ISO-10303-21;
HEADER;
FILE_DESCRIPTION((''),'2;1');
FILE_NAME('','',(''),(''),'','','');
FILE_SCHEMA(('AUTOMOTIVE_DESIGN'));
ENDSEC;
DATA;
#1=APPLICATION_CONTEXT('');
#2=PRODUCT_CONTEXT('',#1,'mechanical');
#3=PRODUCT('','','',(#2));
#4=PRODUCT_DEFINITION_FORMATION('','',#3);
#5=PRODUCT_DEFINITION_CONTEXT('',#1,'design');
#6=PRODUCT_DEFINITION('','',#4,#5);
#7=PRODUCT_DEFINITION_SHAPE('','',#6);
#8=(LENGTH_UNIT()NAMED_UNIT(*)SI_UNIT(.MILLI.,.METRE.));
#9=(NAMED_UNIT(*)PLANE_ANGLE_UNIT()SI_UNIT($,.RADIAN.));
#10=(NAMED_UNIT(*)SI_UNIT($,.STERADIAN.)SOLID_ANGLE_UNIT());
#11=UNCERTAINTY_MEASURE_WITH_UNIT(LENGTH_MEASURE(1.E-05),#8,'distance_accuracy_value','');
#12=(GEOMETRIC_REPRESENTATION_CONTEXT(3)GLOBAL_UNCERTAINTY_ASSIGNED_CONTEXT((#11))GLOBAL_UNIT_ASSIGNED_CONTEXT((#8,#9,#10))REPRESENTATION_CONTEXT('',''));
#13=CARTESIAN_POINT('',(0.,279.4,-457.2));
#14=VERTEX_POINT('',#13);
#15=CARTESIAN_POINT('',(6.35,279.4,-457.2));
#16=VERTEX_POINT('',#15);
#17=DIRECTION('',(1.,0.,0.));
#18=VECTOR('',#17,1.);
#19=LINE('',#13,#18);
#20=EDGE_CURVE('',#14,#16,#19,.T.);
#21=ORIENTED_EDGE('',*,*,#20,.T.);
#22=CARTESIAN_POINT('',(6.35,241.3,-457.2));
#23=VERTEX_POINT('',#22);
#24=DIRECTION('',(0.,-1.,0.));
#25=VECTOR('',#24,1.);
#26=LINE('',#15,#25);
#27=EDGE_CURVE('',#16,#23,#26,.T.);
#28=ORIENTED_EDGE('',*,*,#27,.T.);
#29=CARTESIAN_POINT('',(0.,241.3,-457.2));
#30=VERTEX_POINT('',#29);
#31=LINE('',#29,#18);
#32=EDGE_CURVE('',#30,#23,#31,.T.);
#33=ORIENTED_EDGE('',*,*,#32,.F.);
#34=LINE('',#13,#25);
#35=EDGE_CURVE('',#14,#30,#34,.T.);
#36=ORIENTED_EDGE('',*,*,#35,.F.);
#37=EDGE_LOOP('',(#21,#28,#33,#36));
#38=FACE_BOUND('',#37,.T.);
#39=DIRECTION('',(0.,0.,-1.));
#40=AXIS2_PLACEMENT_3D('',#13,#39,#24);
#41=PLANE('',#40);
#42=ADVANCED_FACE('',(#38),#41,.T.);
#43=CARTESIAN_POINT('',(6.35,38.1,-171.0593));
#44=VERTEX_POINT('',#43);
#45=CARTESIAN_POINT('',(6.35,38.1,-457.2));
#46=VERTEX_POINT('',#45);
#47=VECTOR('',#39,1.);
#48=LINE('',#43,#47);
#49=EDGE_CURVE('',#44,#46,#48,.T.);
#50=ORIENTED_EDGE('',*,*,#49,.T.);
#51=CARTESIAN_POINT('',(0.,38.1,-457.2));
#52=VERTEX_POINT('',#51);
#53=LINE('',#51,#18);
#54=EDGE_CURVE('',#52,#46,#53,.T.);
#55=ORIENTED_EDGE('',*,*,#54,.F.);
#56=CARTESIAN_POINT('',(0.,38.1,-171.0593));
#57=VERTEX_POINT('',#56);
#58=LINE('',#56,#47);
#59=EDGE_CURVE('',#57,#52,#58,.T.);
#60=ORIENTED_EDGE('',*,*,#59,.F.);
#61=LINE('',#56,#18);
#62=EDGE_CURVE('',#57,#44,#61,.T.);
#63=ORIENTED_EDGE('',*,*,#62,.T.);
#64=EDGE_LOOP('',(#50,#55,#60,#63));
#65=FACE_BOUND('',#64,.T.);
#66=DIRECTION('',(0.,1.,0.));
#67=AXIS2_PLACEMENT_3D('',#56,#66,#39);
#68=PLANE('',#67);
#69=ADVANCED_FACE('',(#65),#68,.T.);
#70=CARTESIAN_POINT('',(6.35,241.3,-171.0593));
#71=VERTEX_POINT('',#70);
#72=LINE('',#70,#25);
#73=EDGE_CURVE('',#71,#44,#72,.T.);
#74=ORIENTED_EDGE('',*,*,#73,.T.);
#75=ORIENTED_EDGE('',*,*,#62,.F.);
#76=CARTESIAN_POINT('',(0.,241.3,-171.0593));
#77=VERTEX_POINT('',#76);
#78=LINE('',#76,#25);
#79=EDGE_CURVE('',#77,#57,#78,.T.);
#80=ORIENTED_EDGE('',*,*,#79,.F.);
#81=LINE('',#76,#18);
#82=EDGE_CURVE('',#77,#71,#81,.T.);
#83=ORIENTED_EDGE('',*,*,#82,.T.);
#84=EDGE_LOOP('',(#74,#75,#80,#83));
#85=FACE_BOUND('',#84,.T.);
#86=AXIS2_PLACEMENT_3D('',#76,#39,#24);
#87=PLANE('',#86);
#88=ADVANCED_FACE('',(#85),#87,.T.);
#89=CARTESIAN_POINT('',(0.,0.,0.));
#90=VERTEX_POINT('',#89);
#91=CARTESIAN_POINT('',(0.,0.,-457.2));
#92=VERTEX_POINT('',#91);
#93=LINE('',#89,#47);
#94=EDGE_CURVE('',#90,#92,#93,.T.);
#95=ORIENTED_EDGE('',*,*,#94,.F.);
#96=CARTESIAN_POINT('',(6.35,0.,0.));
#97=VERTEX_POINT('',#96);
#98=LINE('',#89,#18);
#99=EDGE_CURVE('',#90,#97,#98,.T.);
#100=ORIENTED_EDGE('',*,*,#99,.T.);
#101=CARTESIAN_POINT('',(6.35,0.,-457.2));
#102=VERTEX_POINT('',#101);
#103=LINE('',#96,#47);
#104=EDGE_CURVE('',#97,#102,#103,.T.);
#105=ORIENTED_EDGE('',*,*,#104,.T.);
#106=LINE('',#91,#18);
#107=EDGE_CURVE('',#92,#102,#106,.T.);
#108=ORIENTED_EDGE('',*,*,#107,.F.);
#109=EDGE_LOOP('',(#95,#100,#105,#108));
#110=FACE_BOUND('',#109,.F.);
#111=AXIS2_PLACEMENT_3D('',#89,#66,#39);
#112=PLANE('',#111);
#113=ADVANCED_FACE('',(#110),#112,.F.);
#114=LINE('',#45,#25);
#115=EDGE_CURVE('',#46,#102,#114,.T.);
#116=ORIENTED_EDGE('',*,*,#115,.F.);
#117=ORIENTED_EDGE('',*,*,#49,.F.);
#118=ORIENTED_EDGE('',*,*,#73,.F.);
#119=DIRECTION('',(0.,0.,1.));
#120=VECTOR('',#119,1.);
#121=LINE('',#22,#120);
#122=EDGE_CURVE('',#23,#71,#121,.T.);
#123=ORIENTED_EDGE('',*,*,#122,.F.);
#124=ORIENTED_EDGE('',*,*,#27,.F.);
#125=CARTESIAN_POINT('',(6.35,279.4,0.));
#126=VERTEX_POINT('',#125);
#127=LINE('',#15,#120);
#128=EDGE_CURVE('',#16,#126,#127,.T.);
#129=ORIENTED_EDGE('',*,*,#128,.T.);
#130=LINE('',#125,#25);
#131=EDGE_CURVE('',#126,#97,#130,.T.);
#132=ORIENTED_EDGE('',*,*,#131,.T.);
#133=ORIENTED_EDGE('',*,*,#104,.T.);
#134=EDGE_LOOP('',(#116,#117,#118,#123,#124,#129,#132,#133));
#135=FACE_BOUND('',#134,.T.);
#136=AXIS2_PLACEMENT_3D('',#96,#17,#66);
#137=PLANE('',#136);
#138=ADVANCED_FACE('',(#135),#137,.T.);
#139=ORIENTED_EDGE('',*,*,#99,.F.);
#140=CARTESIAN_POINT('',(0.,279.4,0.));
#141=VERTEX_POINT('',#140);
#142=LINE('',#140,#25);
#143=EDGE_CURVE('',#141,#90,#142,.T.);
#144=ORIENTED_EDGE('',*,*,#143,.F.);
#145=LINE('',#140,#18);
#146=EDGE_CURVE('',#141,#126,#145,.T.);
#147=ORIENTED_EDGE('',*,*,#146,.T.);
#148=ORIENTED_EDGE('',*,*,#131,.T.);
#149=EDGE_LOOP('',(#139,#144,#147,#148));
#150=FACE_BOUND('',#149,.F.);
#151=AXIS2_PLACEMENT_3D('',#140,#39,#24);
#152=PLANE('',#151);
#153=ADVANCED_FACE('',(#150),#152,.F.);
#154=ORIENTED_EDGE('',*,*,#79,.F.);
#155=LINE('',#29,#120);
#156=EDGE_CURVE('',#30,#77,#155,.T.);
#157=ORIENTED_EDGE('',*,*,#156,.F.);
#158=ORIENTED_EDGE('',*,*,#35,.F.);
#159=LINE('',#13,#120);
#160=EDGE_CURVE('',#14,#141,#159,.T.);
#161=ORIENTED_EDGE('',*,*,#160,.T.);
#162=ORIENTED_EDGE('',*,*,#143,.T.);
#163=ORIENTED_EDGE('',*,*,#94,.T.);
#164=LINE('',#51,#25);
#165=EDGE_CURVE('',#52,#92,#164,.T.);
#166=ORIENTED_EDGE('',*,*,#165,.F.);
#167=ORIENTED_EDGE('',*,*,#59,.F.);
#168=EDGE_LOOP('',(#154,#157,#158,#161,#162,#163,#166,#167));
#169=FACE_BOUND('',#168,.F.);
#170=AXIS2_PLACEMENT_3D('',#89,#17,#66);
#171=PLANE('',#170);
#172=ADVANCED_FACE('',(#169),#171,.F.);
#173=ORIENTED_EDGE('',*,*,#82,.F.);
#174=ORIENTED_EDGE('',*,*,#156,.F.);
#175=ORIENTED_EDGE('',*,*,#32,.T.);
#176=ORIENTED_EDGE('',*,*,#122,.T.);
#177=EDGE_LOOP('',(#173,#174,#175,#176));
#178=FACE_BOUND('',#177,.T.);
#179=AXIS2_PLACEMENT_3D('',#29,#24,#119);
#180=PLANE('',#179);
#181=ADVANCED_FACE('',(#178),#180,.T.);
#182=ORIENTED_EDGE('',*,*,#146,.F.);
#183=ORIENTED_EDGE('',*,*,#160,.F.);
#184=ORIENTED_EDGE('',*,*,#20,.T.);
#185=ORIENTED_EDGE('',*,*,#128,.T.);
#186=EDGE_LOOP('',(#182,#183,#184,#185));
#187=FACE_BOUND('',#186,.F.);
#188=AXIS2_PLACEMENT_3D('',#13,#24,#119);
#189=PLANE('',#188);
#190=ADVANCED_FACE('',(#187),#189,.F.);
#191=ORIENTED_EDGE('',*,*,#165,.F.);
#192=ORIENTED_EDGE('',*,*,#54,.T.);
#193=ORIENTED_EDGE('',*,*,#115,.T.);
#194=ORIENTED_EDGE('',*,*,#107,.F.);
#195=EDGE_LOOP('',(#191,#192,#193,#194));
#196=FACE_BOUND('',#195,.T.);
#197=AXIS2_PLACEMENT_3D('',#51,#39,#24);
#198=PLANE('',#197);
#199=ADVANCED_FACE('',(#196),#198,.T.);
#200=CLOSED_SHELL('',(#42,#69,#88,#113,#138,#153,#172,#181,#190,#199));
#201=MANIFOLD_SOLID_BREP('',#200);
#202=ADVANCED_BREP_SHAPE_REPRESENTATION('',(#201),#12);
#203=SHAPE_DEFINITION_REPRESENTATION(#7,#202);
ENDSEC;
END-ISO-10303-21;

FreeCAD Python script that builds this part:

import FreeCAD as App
import Part
import Sketcher
from FreeCAD import Vector
Q = App.Units.Quantity

doc = App.newDocument("Part")
body = doc.addObject("PartDesign::Body", "Body")

# Sketch on YZ plane
sketch1 = body.newObject("Sketcher::SketchObject", "Sketch")
sketch1.AttachmentSupport = (doc.getObject("YZ_Plane"), [""])
sketch1.MapMode = "FlatFace"
sketch1.addGeometry(Part.LineSegment(Vector(279, 0, 0), Vector(0, 0, 0)), False)
sketch1.addGeometry(Part.LineSegment(Vector(0, 0, 0), Vector(0, -457, 0)), False)
sketch1.addGeometry(Part.LineSegment(Vector(0, -457, 0), Vector(38, -457, 0)), False)
sketch1.addGeometry(Part.LineSegment(Vector(38, -457, 0), Vector(38, -171, 0)), False)
sketch1.addGeometry(Part.LineSegment(Vector(38, -171, 0), Vector(241, -171, 0)), False)
sketch1.addGeometry(Part.LineSegment(Vector(241, -171, 0), Vector(241, -457, 0)), False)
sketch1.addGeometry(Part.LineSegment(Vector(241, -457, 0), Vector(279, -457, 0)), False)
sketch1.addGeometry(Part.LineSegment(Vector(279, -457, 0), Vector(279, 0, 0)), False)
sketch1.addConstraint(Sketcher.Constraint("Coincident", 0, 2, 1, 1))
sketch1.addConstraint(Sketcher.Constraint("Coincident", 1, 2, 2, 1))
sketch1.addConstraint(Sketcher.Constraint("Coincident", 2, 2, 3, 1))
sketch1.addConstraint(Sketcher.Constraint("Coincident", 3, 2, 4, 1))
sketch1.addConstraint(Sketcher.Constraint("Coincident", 4, 2, 5, 1))
sketch1.addConstraint(Sketcher.Constraint("Coincident", 5, 2, 6, 1))
sketch1.addConstraint(Sketcher.Constraint("Coincident", 6, 2, 7, 1))
sketch1.addConstraint(Sketcher.Constraint("Coincident", 7, 2, 0, 1))
sketch1.addConstraint(Sketcher.Constraint("Horizontal", 0))
sketch1.addConstraint(Sketcher.Constraint("Vertical", 1))
sketch1.addConstraint(Sketcher.Constraint("Horizontal", 2))
sketch1.addConstraint(Sketcher.Constraint("Vertical", 3))
sketch1.addConstraint(Sketcher.Constraint("Horizontal", 4))
sketch1.addConstraint(Sketcher.Constraint("Vertical", 5))
sketch1.addConstraint(Sketcher.Constraint("Horizontal", 6))
sketch1.addConstraint(Sketcher.Constraint("Vertical", 7))
sketch1.addConstraint(Sketcher.Constraint("Coincident", 0, 2, -1, 1))
sketch1.addConstraint(Sketcher.Constraint("Horizontal", 2, 2, 5, 2))
sketch1.addConstraint(Sketcher.Constraint("Equal", 2, 6))
sketch1.addConstraint(Sketcher.Constraint("DistanceX", 0, 2, 0, 1, Q("11 in")))
sketch1.addConstraint(Sketcher.Constraint("DistanceY", 1, 2, 1, 1, Q("18 in")))
sketch1.addConstraint(Sketcher.Constraint("DistanceX", 2, 1, 2, 2, Q("1.5 in")))
sketch1.addConstraint(Sketcher.Constraint("DistanceY", 3, 1, 3, 2, 286.1407))
pad1 = body.newObject("PartDesign::Pad", "Pad")
pad1.Profile = sketch1
pad1.Length = Q("0.25 in")

doc.recompute()
